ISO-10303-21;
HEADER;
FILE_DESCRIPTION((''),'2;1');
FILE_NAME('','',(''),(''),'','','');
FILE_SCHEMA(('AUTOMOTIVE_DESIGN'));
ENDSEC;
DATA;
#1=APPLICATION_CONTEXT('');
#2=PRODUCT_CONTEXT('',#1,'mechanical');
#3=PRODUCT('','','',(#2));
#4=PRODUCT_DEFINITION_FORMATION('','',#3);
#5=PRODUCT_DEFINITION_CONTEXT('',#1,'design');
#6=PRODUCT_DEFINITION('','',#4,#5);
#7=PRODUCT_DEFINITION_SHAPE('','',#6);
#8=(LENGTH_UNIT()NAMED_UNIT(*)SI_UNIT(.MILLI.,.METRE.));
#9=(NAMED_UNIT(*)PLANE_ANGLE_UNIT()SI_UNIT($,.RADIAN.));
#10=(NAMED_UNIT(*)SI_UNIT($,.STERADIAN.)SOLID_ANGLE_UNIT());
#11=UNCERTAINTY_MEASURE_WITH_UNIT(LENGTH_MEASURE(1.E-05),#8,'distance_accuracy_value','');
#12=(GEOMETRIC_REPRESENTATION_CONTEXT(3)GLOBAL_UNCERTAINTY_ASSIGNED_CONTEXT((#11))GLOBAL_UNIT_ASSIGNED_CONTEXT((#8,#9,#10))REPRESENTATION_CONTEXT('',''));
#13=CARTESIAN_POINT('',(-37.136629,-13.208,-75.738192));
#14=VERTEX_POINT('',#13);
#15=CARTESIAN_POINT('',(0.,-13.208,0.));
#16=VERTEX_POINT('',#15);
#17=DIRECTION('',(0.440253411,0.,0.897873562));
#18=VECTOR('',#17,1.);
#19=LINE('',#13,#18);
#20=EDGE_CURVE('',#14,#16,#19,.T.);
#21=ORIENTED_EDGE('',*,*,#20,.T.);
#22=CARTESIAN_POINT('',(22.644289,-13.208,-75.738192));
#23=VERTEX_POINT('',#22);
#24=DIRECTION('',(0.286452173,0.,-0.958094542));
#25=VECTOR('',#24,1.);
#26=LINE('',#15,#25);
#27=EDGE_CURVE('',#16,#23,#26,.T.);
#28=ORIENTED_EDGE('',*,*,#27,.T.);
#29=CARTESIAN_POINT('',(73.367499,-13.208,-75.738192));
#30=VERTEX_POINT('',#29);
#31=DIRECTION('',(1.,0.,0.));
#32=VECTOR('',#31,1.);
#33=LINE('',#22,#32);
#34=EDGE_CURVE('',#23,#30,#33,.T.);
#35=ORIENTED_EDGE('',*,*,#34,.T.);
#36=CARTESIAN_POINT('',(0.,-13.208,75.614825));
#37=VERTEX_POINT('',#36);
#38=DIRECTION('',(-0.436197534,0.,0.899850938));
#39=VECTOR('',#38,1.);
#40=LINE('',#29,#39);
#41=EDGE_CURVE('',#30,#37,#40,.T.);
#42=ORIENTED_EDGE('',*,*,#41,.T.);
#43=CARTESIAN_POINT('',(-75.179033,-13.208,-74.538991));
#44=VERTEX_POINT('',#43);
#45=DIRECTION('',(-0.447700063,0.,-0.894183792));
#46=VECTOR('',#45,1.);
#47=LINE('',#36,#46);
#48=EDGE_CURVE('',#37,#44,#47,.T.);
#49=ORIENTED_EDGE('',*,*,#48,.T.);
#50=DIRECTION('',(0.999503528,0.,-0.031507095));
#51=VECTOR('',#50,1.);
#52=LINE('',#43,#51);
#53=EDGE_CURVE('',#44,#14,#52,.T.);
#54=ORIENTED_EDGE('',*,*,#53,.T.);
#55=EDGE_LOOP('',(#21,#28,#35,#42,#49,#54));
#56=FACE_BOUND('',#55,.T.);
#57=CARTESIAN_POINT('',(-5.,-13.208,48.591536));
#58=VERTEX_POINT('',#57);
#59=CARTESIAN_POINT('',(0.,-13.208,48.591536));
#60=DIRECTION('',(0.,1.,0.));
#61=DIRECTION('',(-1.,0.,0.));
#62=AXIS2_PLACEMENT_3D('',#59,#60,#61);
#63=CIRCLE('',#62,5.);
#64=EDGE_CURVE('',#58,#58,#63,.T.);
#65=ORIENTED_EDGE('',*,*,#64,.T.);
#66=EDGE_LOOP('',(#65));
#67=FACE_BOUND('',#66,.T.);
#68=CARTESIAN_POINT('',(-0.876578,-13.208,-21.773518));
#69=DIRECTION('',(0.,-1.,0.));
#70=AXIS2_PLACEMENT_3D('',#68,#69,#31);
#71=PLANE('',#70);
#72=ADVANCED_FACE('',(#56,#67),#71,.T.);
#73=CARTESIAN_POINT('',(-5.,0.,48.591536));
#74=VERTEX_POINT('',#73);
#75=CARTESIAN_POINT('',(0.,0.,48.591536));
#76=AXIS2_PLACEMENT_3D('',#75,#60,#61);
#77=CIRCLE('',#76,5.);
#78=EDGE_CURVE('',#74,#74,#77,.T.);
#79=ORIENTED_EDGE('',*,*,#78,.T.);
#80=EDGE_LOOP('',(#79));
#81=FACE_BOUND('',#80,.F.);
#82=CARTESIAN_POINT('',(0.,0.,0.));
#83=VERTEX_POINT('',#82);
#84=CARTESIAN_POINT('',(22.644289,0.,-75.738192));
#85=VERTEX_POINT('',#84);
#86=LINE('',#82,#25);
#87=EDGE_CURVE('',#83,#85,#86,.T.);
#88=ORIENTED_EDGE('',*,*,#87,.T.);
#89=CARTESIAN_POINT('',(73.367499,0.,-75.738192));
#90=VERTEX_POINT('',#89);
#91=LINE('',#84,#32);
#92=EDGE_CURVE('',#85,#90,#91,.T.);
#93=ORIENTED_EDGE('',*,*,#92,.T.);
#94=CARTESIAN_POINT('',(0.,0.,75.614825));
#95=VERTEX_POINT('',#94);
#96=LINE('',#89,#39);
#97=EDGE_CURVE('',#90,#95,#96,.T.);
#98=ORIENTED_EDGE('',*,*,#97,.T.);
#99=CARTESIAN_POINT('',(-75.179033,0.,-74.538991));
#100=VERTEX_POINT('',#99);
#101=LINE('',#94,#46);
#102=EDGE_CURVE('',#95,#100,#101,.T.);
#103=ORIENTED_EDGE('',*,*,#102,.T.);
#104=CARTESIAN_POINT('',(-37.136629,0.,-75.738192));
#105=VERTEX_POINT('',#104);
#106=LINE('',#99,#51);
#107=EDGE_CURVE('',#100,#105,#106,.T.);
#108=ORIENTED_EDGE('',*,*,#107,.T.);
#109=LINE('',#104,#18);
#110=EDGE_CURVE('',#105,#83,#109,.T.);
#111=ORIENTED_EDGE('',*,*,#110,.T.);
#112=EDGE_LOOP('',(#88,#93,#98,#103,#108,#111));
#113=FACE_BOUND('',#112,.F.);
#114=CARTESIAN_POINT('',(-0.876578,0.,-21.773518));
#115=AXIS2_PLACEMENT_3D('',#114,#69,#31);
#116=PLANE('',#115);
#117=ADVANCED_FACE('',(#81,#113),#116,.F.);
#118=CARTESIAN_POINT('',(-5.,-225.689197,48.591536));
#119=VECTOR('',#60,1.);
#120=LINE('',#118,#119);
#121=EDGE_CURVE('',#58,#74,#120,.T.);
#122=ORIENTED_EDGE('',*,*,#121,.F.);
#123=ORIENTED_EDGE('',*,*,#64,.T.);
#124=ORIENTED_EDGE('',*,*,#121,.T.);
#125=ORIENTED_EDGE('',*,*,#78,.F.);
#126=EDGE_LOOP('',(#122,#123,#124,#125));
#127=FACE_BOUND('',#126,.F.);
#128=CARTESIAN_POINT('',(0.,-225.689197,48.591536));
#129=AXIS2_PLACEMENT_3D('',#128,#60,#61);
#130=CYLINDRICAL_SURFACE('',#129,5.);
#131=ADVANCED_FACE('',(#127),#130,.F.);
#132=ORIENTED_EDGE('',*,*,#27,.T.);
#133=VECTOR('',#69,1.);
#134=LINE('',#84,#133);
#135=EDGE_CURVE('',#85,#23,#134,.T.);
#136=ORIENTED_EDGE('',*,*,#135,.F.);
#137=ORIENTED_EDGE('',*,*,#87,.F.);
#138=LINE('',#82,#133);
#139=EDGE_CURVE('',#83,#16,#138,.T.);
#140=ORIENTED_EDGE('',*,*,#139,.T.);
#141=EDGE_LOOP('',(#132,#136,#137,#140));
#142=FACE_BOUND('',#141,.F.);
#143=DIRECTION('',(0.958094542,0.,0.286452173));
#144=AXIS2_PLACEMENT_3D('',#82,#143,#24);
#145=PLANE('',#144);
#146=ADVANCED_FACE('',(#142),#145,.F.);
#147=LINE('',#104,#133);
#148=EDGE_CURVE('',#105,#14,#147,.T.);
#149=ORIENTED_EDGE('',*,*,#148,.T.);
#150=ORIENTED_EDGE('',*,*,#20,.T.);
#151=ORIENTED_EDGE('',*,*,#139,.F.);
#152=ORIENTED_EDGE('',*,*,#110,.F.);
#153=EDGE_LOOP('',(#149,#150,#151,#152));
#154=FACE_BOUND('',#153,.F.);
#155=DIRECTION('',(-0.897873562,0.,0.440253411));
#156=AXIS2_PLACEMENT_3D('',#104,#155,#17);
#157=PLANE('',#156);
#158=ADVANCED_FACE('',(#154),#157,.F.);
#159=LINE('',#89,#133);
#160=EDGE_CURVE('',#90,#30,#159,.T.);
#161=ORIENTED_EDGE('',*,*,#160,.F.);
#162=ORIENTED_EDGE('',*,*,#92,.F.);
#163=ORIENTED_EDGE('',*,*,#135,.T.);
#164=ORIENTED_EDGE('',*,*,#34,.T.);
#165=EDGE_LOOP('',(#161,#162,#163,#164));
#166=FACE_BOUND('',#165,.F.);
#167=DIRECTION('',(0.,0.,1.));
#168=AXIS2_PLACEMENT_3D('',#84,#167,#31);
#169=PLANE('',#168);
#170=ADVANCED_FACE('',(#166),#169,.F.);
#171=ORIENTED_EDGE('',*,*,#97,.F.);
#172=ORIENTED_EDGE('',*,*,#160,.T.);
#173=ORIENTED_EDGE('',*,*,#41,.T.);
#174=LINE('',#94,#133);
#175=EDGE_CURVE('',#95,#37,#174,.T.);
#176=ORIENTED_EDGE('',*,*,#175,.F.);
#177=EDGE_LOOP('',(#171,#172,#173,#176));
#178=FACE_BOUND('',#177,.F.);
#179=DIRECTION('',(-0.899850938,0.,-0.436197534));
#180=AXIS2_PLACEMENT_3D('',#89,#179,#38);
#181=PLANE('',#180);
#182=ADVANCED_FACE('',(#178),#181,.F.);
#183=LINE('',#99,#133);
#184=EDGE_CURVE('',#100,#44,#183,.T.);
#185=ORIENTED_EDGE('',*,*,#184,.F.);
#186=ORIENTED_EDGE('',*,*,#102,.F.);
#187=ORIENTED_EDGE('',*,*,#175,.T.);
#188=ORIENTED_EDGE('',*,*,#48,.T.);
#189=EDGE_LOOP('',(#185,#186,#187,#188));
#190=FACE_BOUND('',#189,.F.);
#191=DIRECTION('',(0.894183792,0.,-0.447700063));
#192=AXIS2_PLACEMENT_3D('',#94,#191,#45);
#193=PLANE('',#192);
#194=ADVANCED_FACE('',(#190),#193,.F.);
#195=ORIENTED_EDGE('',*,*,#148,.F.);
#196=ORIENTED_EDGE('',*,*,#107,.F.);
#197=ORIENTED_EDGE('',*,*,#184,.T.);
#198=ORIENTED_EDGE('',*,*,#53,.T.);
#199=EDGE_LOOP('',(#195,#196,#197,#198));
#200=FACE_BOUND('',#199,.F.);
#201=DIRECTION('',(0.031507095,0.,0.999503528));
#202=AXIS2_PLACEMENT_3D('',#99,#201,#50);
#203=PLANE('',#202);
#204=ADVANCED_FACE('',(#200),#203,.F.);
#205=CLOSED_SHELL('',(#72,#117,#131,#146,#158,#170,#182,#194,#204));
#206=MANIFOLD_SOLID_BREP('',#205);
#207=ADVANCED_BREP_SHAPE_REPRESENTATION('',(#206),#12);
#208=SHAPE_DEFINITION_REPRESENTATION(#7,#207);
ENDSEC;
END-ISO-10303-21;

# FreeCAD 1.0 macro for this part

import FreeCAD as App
import Part
import Sketcher


def add_polygon(sketch, points):
    """Adds a closed chain of lines whose ends are joined by coincident constraints."""
    first, n = sketch.GeometryCount, len(points)
    for a, b in zip(points, points[1:] + points[:1]):
        sketch.addGeometry(Part.LineSegment(App.Vector(*a, 0), App.Vector(*b, 0)), False)
    for i in range(n):
        sketch.addConstraint(Sketcher.Constraint("Coincident", first + i, 2, first + (i + 1) % n, 1))

doc = App.newDocument("Part")
body = doc.addObject("PartDesign::Body", "Body")

# Sketch on XZ plane
sketch1 = doc.addObject("Sketcher::SketchObject", "Sketch")
body.addObject(sketch1)
sketch1.AttachmentSupport = (doc.XZ_Plane, [""])
sketch1.MapMode = "FlatFace"
add_polygon(sketch1, [(0, 75.614825), (-75.179033, -74.538991), (-37.136629, -75.738192), (0, 0), (22.644289, -75.738192), (73.367499, -75.738192)])  # lines 0-5
sketch1.addConstraint(Sketcher.Constraint("Horizontal", 4))
sketch1.addConstraint(Sketcher.Constraint("Coincident", 2, 2, -1, 1))
sketch1.addConstraint(Sketcher.Constraint("PointOnObject", 5, 2, -2))
sketch1.addConstraint(Sketcher.Constraint("Horizontal", 1, 2, 3, 2))
sketch1.addConstraint(Sketcher.Constraint("Distance", 1, 38.0613))
sketch1.addConstraint(Sketcher.Constraint("DistanceX", 4, 1, 4, 2, 50.72321))
sketch1.addConstraint(Sketcher.Constraint("DistanceX", -1, 1, 4, 2, 73.367499))
sketch1.addConstraint(Sketcher.Constraint("DistanceY", 1, 2, 0, 2, 1.199201))
sketch1.addConstraint(Sketcher.Constraint("DistanceY", 0, 2, -1, 1, 74.538991))
sketch1.addConstraint(Sketcher.Constraint("DistanceX", 1, 2, -1, 1, 37.136629))
sketch1.addConstraint(Sketcher.Constraint("Distance", 0, 167.922766))
pad1 = doc.addObject("PartDesign::Pad", "Pad")
body.addObject(pad1)
pad1.Profile = sketch1
pad1.Length = 13.208

# Sketch on XZ plane
sketch2 = doc.addObject("Sketcher::SketchObject", "Sketch001")
body.addObject(sketch2)
sketch2.AttachmentSupport = (doc.XZ_Plane, [""])
sketch2.MapMode = "FlatFace"
sketch2.AttachmentOffset = App.Placement(App.Vector(0, 0, 13.208), App.Rotation())
sketch2.addGeometry(Part.Circle(App.Vector(0, 48.591536, 0), App.Vector(0, 0, 1), 5), False)
sketch2.addConstraint(Sketcher.Constraint("PointOnObject", 0, 3, -2))
sketch2.addConstraint(Sketcher.Constraint("Diameter", 0, 10.0))
sketch2.addConstraint(Sketcher.Constraint("DistanceY", -1, 1, 0, 3, 48.591536))
doc.recompute()
hole = doc.addObject("PartDesign::Hole", "Hole")
body.addObject(hole)
hole.Profile = sketch2
hole.ThreadType = "None"
hole.Diameter = 10
hole.DepthType = "ThroughAll"

doc.recompute()
